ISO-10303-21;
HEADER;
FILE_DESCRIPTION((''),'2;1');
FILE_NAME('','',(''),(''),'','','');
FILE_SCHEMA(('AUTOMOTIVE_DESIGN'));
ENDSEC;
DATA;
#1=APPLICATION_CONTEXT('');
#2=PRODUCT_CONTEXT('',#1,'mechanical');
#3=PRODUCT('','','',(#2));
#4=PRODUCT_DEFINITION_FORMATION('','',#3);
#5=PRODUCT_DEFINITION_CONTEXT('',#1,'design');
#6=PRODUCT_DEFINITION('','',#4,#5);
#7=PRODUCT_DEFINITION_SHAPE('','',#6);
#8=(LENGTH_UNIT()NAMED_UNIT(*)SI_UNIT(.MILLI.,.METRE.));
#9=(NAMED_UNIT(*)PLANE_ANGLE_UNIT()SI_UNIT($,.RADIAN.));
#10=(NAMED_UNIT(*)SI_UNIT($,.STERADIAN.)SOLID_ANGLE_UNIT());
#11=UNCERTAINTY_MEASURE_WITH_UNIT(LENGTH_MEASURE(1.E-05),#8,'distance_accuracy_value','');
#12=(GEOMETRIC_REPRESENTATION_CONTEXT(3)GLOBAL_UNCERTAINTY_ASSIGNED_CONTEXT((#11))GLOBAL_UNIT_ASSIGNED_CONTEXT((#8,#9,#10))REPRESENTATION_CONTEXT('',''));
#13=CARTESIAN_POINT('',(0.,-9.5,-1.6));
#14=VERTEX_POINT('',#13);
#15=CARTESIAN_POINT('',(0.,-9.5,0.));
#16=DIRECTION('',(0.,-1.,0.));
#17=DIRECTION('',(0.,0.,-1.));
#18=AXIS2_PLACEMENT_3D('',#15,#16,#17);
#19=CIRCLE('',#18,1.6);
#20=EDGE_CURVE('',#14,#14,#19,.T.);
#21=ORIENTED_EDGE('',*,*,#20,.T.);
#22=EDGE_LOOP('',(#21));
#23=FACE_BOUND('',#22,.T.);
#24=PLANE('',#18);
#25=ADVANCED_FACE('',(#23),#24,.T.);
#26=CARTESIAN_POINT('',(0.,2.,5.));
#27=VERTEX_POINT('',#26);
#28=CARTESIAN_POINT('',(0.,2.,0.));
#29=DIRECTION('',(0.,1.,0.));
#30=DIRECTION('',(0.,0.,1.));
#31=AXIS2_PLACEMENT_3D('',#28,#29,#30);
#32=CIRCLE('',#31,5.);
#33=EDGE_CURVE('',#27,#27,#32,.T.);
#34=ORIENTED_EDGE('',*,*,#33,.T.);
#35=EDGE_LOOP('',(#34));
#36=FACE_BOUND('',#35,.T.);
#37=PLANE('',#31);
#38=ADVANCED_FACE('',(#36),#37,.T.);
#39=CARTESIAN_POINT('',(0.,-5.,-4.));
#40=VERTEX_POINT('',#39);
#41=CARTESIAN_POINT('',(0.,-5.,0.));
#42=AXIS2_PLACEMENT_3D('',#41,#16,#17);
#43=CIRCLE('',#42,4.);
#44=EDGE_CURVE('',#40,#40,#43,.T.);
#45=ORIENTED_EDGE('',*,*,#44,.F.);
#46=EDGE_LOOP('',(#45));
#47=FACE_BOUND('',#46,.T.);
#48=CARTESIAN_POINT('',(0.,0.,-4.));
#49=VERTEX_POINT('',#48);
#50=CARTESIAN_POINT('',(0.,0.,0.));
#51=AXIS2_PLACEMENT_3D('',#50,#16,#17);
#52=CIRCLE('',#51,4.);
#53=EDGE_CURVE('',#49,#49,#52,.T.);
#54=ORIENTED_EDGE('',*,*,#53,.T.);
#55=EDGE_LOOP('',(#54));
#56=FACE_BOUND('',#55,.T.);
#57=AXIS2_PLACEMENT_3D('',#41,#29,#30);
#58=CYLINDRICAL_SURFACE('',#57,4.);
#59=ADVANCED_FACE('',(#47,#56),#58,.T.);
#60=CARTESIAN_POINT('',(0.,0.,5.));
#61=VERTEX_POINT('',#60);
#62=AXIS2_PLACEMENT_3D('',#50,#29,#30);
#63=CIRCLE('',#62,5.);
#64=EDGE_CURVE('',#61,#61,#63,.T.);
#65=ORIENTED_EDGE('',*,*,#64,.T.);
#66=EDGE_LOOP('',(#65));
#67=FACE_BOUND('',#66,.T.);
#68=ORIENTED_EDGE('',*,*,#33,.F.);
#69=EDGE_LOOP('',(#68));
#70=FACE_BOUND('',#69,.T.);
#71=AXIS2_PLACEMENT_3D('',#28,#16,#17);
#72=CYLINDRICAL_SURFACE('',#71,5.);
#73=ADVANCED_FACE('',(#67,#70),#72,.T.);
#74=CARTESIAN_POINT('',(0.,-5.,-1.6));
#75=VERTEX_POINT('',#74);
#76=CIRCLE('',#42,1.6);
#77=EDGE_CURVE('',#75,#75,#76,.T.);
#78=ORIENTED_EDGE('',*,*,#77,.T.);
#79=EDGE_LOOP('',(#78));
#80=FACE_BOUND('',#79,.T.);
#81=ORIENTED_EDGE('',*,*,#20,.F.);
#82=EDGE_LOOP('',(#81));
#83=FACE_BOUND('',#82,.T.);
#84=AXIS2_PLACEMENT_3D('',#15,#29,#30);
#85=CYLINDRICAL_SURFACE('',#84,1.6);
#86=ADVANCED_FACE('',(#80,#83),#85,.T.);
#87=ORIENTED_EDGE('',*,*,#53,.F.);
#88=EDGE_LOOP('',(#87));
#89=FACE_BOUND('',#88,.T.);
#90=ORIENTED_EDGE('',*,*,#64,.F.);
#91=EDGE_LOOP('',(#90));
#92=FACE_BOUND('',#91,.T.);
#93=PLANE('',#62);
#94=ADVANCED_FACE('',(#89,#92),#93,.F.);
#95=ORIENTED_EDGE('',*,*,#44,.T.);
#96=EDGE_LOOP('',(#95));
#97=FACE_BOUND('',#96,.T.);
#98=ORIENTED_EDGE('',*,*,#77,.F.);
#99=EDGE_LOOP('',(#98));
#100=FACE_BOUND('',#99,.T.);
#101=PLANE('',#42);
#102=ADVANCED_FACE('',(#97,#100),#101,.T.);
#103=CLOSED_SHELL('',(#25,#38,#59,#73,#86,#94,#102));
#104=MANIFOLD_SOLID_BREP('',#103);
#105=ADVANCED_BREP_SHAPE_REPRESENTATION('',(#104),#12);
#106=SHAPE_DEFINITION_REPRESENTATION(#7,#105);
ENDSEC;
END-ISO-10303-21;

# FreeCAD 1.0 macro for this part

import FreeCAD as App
import Part
import Sketcher

doc = App.newDocument("Part")
params = doc.addObject("Spreadsheet::Sheet", "Params")
for row, (alias, value) in enumerate([
    ("sketch1_diameter", "10 mm"),
    ("pad1_length", "2 mm"),
    ("sketch2_diameter", "8 mm"),
    ("pad2_length", "5 mm"),
    ("sketch3_diameter", "3.2 mm"),
    ("pad3_length", "4.5 mm"),
], start=1):
    params.set(f"A{row}", alias)
    params.set(f"B{row}", "=" + value)
    params.setAlias(f"B{row}", alias)

body = doc.addObject("PartDesign::Body", "Body")

# Sketch on XZ plane
sketch1 = body.newObject("Sketcher::SketchObject", "Sketch")
sketch1.AttachmentSupport = (doc.getObject("XZ_Plane"), [""])
sketch1.MapMode = "FlatFace"
sketch1.addGeometry(Part.Circle(App.Vector(0, 0, 0), App.Vector(0, 0, 1), 5), False)
sketch1.addConstraint([
    Sketcher.Constraint("Coincident", 0, 3, -1, 1),
    Sketcher.Constraint("Diameter", 0, 10.0),
])
sketch1.setExpression("Constraints[1]", "Params.sketch1_diameter")
pad1 = body.newObject("PartDesign::Pad", "Pad")
pad1.Profile = sketch1
pad1.setExpression("Length", "Params.pad1_length")
pad1.Reversed = True

# Sketch on XZ plane
sketch2 = body.newObject("Sketcher::SketchObject", "Sketch001")
sketch2.AttachmentSupport = (doc.getObject("XZ_Plane"), [""])
sketch2.MapMode = "FlatFace"
sketch2.addGeometry(Part.Circle(App.Vector(0, 0, 0), App.Vector(0, 0, 1), 4), False)
sketch2.addConstraint([
    Sketcher.Constraint("Coincident", 0, 3, -1, 1),
    Sketcher.Constraint("Diameter", 0, 8.0),
])
sketch2.setExpression("Constraints[1]", "Params.sketch2_diameter")
pad2 = body.newObject("PartDesign::Pad", "Pad001")
pad2.Profile = sketch2
pad2.setExpression("Length", "Params.pad2_length")

# Sketch on XZ plane
sketch3 = body.newObject("Sketcher::SketchObject", "Sketch002")
sketch3.AttachmentSupport = (doc.getObject("XZ_Plane"), [""])
sketch3.MapMode = "FlatFace"
sketch3.AttachmentOffset = App.Placement(App.Vector(0, 0, 5), App.Rotation())
sketch3.addGeometry(Part.Circle(App.Vector(0, 0, 0), App.Vector(0, 0, 1), 1.6), False)
sketch3.addConstraint([
    Sketcher.Constraint("Coincident", 0, 3, -1, 1),
    Sketcher.Constraint("Diameter", 0, 3.2),
])
sketch3.setExpression("Constraints[1]", "Params.sketch3_diameter")
pad3 = body.newObject("PartDesign::Pad", "Pad002")
pad3.Profile = sketch3
pad3.setExpression("Length", "Params.pad3_length")

doc.recompute()
